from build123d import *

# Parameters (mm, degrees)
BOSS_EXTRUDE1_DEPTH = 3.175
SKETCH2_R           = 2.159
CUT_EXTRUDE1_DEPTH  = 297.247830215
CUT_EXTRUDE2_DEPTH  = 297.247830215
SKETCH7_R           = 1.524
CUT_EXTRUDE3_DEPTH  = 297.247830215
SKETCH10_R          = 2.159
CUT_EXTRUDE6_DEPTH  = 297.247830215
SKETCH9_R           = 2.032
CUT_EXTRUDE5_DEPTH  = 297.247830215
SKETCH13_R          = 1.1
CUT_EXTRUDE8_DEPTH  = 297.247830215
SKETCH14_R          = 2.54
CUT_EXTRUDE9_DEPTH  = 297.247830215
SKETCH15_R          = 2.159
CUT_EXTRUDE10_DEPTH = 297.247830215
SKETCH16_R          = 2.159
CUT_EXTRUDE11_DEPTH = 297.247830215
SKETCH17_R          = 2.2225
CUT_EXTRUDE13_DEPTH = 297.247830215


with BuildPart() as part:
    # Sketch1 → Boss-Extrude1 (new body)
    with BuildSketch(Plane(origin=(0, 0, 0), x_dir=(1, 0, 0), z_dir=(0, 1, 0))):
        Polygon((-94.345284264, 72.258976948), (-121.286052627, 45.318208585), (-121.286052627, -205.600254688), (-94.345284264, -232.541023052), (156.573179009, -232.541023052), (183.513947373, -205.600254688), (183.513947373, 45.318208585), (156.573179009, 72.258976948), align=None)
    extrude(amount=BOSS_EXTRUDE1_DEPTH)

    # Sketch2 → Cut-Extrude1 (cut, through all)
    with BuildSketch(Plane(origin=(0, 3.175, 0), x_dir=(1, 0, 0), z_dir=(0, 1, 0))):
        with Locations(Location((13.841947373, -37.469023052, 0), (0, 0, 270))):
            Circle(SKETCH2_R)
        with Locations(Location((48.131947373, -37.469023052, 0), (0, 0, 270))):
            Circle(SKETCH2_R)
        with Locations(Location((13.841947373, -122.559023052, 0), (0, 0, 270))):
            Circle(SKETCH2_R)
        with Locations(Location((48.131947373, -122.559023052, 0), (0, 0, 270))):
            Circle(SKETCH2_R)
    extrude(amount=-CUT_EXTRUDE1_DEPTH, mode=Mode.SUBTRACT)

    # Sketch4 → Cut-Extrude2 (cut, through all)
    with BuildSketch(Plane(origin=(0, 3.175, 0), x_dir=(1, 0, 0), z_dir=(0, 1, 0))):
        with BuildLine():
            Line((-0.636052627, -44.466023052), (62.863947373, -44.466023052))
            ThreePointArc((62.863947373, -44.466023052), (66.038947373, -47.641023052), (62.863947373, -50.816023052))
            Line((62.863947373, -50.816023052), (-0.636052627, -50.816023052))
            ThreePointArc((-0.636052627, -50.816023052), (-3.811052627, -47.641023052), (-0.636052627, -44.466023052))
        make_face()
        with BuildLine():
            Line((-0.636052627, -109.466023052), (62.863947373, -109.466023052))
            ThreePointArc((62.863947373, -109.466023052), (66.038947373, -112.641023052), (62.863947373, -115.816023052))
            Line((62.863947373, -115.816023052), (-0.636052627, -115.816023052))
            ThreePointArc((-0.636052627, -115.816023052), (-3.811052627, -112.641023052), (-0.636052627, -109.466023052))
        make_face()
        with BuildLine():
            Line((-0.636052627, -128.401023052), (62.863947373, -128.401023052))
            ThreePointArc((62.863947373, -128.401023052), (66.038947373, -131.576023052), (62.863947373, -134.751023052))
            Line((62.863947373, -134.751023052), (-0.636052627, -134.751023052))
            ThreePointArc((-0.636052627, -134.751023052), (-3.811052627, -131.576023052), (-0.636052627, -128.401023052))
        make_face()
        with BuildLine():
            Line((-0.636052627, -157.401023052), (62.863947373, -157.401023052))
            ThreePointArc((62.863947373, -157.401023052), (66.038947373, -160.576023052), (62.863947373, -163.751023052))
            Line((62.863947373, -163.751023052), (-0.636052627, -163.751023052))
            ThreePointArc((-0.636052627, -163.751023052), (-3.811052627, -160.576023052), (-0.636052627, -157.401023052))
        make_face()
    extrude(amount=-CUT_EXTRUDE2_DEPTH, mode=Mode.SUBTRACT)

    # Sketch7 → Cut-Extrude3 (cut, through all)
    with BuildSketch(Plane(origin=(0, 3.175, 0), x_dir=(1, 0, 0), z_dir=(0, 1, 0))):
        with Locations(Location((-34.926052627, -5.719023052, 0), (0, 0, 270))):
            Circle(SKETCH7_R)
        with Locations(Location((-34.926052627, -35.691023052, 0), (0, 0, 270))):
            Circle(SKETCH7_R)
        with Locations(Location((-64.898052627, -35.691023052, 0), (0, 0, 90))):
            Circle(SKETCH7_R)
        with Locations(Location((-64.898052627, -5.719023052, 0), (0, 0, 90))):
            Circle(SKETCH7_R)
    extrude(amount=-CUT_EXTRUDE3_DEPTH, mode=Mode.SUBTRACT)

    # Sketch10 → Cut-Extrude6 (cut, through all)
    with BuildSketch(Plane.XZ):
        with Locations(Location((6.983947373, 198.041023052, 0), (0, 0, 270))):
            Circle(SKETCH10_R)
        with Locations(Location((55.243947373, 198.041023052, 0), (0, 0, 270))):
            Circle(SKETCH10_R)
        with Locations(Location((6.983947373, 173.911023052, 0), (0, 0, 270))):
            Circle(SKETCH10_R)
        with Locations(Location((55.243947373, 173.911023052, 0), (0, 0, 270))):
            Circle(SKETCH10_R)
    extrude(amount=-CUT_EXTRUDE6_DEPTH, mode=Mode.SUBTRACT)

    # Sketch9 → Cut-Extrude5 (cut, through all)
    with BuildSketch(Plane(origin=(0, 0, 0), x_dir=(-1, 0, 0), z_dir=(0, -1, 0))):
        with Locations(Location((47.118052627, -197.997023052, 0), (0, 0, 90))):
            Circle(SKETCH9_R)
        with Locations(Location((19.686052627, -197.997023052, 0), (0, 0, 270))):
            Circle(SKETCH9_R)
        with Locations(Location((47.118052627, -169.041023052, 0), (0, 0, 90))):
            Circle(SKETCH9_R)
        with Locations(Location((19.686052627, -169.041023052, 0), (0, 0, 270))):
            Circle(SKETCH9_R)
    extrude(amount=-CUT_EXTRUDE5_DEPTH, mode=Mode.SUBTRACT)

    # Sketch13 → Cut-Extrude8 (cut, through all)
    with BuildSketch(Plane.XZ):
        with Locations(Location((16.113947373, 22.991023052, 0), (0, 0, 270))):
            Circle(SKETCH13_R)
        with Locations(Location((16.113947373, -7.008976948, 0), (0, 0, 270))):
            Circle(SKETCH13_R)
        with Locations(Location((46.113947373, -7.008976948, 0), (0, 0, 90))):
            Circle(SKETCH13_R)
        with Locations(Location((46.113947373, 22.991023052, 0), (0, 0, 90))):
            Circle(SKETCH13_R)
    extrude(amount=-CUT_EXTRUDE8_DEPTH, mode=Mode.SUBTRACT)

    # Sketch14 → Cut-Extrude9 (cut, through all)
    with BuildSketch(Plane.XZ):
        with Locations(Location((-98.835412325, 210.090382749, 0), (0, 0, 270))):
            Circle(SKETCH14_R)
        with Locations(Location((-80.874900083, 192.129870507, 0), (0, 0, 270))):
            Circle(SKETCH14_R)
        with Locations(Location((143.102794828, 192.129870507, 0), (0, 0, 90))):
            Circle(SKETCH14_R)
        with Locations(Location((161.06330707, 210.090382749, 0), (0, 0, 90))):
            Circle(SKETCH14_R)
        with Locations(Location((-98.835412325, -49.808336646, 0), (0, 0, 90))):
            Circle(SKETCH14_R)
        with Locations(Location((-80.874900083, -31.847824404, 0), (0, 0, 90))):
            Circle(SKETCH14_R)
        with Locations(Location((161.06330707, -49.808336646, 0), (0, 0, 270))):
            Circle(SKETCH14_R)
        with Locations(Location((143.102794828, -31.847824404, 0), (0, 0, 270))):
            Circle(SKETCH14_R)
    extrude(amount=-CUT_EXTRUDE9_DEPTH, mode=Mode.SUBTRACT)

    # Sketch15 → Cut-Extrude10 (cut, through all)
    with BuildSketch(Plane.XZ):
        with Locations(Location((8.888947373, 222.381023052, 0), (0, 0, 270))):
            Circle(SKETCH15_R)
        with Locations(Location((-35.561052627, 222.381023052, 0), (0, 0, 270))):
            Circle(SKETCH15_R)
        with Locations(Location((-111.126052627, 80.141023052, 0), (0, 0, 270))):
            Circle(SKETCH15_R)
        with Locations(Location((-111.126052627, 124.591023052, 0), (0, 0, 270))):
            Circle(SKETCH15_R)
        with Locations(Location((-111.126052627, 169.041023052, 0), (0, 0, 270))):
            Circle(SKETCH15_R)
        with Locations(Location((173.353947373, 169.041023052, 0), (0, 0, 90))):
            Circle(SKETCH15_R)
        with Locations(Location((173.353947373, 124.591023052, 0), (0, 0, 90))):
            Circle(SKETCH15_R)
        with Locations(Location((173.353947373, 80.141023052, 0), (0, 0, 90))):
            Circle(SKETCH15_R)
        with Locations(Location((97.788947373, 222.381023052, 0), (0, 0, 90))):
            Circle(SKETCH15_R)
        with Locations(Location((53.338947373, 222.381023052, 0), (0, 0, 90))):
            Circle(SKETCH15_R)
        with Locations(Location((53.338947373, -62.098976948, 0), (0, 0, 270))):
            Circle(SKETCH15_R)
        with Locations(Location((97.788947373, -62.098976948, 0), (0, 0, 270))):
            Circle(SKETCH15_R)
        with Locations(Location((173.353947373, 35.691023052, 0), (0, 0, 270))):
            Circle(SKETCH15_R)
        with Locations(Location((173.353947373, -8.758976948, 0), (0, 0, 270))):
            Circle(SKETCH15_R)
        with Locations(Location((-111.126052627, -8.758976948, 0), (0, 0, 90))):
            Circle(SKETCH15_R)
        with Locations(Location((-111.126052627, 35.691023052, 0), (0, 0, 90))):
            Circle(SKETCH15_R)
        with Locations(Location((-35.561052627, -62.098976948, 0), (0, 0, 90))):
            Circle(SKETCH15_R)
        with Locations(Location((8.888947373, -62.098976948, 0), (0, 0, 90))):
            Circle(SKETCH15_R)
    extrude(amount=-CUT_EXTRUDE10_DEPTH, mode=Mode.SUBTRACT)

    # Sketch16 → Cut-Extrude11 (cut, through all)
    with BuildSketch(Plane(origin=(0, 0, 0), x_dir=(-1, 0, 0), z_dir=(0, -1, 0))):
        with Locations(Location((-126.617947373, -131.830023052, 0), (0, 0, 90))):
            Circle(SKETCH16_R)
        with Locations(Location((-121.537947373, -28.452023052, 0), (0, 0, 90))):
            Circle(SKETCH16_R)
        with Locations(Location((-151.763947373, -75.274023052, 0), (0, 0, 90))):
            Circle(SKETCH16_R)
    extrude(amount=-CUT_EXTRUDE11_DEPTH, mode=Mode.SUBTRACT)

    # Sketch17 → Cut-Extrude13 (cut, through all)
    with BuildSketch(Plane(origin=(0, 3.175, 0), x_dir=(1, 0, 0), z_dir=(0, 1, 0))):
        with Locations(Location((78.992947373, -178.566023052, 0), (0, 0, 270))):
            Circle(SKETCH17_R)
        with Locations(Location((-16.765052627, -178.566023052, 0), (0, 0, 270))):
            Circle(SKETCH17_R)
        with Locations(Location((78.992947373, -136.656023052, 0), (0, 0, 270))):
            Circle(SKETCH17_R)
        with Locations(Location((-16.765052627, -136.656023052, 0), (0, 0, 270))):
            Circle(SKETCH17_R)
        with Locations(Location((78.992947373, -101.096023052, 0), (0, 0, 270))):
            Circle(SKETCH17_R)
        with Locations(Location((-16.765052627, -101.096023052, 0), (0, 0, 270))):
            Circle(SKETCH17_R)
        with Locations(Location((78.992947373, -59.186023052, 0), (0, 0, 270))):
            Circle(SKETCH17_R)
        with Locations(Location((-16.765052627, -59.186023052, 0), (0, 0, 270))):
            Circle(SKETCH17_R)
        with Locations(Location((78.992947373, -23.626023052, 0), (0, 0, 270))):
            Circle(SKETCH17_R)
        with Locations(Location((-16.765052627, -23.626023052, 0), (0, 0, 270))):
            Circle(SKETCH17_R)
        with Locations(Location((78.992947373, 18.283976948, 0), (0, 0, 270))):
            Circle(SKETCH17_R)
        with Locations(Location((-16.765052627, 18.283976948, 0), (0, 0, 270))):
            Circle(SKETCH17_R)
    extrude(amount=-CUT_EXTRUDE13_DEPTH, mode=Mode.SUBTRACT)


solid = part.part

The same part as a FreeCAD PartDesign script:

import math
import FreeCAD as App
import Part
import Sketcher

V = App.Vector
Q = App.Units.Quantity


def add_polygon(sketch, points):
    """Adds a closed chain of lines whose ends are joined by coincident constraints."""
    first, n = sketch.GeometryCount, len(points)
    for a, b in zip(points, points[1:] + points[:1]):
        sketch.addGeometry(Part.LineSegment(App.Vector(*a, 0), App.Vector(*b, 0)), False)
    for i in range(n):
        sketch.addConstraint(Sketcher.Constraint("Coincident", first + i, 2, first + (i + 1) % n, 1))

doc = App.newDocument("Part")
body = doc.addObject("PartDesign::Body", "Body")

sketch1 = body.newObject("Sketcher::SketchObject", "Sketch")
sketch1.AttachmentSupport = (doc.getObject("XZ_Plane"), [""])
sketch1.MapMode = "FlatFace"
add_polygon(sketch1, [(-94, -72), (-121, -45), (-121, 206), (-94, 233), (157, 233), (184, 206), (184, -45), (157, -72)])
sketch1.addConstraint(Sketcher.Constraint("Vertical", 1))
sketch1.addConstraint(Sketcher.Constraint("Horizontal", 3))
sketch1.addConstraint(Sketcher.Constraint("Vertical", 5))
sketch1.addConstraint(Sketcher.Constraint("Horizontal", 7))
sketch1.addConstraint(Sketcher.Constraint("Perpendicular", 0, 2))
sketch1.addConstraint(Sketcher.Constraint("Perpendicular", 2, 4))
sketch1.addConstraint(Sketcher.Constraint("Perpendicular", 4, 6))
sketch1.addConstraint(Sketcher.Constraint("Horizontal", 1, 2, 4, 2))
sketch1.addConstraint(Sketcher.Constraint("Horizontal", 0, 2, 5, 2))
sketch1.addConstraint(Sketcher.Constraint("Vertical", 3, 2, 6, 2))
sketch1.addConstraint(Sketcher.Constraint("Vertical", 2, 2, 7, 2))
sketch1.addConstraint(Sketcher.Constraint("Equal", 7, 1))
sketch1.addConstraint(Sketcher.Constraint("DistanceX", 1, 2, 4, 2, Q("12 in")))
sketch1.addConstraint(Sketcher.Constraint("Distance", 0, Q("1.5 in")))
sketch1.addConstraint(Sketcher.Constraint("DistanceY", 0, 2, -1, 1, Q("45.318209 mm")))
sketch1.addConstraint(Sketcher.Constraint("DistanceX", -1, 1, 3, 2, Q("156.573179 mm")))
pad1 = body.newObject("PartDesign::Pad", "Pad")
pad1.Profile = sketch1
pad1.Length = Q("0.125 in")
pad1.Reversed = True

sketch2 = body.newObject("Sketcher::SketchObject", "Sketch001")
sketch2.AttachmentSupport = (doc.getObject("XZ_Plane"), [""])
sketch2.MapMode = "FlatFace"
sketch2.AttachmentOffset = App.Placement(V(0, 0, -0.125 * 25.4), App.Rotation())
sketch2.addGeometry(Part.Circle(V(13.8, 37.5, 0), V(0, 0, 1), 2.2), False)
sketch2.addGeometry(Part.Circle(V(48.1, 37.5, 0), V(0, 0, 1), 2.2), False)
sketch2.addGeometry(Part.Circle(V(13.8, 122.6, 0), V(0, 0, 1), 2.2), False)
sketch2.addGeometry(Part.Circle(V(48.1, 122.6, 0), V(0, 0, 1), 2.2), False)
sketch2.addConstraint(Sketcher.Constraint("Equal", 0, 1))
sketch2.addConstraint(Sketcher.Constraint("Equal", 1, 2))
sketch2.addConstraint(Sketcher.Constraint("Equal", 2, 3))
sketch2.addConstraint(Sketcher.Constraint("Horizontal", 0, 3, 1, 3))
sketch2.addConstraint(Sketcher.Constraint("Horizontal", 2, 3, 3, 3))
sketch2.addConstraint(Sketcher.Constraint("Vertical", 0, 3, 2, 3))
sketch2.addConstraint(Sketcher.Constraint("Vertical", 1, 3, 3, 3))
sketch2.addConstraint(Sketcher.Constraint("Diameter", 0, Q("0.17 in")))
sketch2.addConstraint(Sketcher.Constraint("DistanceX", 0, 3, 1, 3, Q("1.35 in")))
sketch2.addConstraint(Sketcher.Constraint("DistanceY", 0, 3, 2, 3, Q("3.35 in")))
sketch2.addConstraint(Sketcher.Constraint("DistanceX", -1, 1, 0, 3, Q("13.841947 mm")))
sketch2.addConstraint(Sketcher.Constraint("DistanceY", -1, 1, 0, 3, Q("37.469023 mm")))
pocket1 = body.newObject("PartDesign::Pocket", "Pocket")
pocket1.Profile = sketch2
pocket1.Type = "ThroughAll"
pocket1.Reversed = True

sketch3 = body.newObject("Sketcher::SketchObject", "Sketch002")
sketch3.AttachmentSupport = (doc.getObject("XZ_Plane"), [""])
sketch3.MapMode = "FlatFace"
sketch3.AttachmentOffset = App.Placement(V(0, 0, -0.125 * 25.4), App.Rotation())
sketch3.addGeometry(Part.LineSegment(V(62.9, 44.5, 0), V(-0.6, 44.5, 0)), False)
sketch3.addGeometry(Part.ArcOfCircle(Part.Circle(V(-0.6, 47.6, 0), V(0, 0, 1), 3.2), math.radians(90), math.radians(270)), False)
sketch3.addGeometry(Part.LineSegment(V(-0.6, 50.8, 0), V(62.9, 50.8, 0)), False)
sketch3.addGeometry(Part.ArcOfCircle(Part.Circle(V(62.9, 47.6, 0), V(0, 0, 1), 3.2), math.radians(-90), math.radians(90)), False)
sketch3.addGeometry(Part.LineSegment(V(62.9, 109.5, 0), V(-0.6, 109.5, 0)), False)
sketch3.addGeometry(Part.ArcOfCircle(Part.Circle(V(-0.6, 112.6, 0), V(0, 0, 1), 3.2), math.radians(90), math.radians(270)), False)
sketch3.addGeometry(Part.LineSegment(V(-0.6, 115.8, 0), V(62.9, 115.8, 0)), False)
sketch3.addGeometry(Part.ArcOfCircle(Part.Circle(V(62.9, 112.6, 0), V(0, 0, 1), 3.2), math.radians(-90), math.radians(90)), False)
sketch3.addGeometry(Part.LineSegment(V(62.9, 128.4, 0), V(-0.6, 128.4, 0)), False)
sketch3.addGeometry(Part.ArcOfCircle(Part.Circle(V(-0.6, 131.6, 0), V(0, 0, 1), 3.2), math.radians(90), math.radians(270)), False)
sketch3.addGeometry(Part.LineSegment(V(-0.6, 134.8, 0), V(62.9, 134.8, 0)), False)
sketch3.addGeometry(Part.ArcOfCircle(Part.Circle(V(62.9, 131.6, 0), V(0, 0, 1), 3.2), math.radians(-90), math.radians(90)), False)
sketch3.addGeometry(Part.LineSegment(V(62.9, 157.4, 0), V(-0.6, 157.4, 0)), False)
sketch3.addGeometry(Part.ArcOfCircle(Part.Circle(V(-0.6, 160.6, 0), V(0, 0, 1), 3.2), math.radians(90), math.radians(270)), False)
sketch3.addGeometry(Part.LineSegment(V(-0.6, 163.8, 0), V(62.9, 163.8, 0)), False)
sketch3.addGeometry(Part.ArcOfCircle(Part.Circle(V(62.9, 160.6, 0), V(0, 0, 1), 3.2), math.radians(-90), math.radians(90)), False)
sketch3.addConstraint(Sketcher.Constraint("Tangent", 0, 2, 1, 2))
sketch3.addConstraint(Sketcher.Constraint("Tangent", 1, 1, 2, 1))
sketch3.addConstraint(Sketcher.Constraint("Tangent", 2, 2, 3, 2))
sketch3.addConstraint(Sketcher.Constraint("Tangent", 3, 1, 0, 1))
sketch3.addConstraint(Sketcher.Constraint("Tangent", 4, 2, 5, 2))
sketch3.addConstraint(Sketcher.Constraint("Tangent", 5, 1, 6, 1))
sketch3.addConstraint(Sketcher.Constraint("Tangent", 6, 2, 7, 2))
sketch3.addConstraint(Sketcher.Constraint("Tangent", 7, 1, 4, 1))
sketch3.addConstraint(Sketcher.Constraint("Tangent", 8, 2, 9, 2))
sketch3.addConstraint(Sketcher.Constraint("Tangent", 9, 1, 10, 1))
sketch3.addConstraint(Sketcher.Constraint("Tangent", 10, 2, 11, 2))
sketch3.addConstraint(Sketcher.Constraint("Tangent", 11, 1, 8, 1))
sketch3.addConstraint(Sketcher.Constraint("Tangent", 12, 2, 13, 2))
sketch3.addConstraint(Sketcher.Constraint("Tangent", 13, 1, 14, 1))
sketch3.addConstraint(Sketcher.Constraint("Tangent", 14, 2, 15, 2))
sketch3.addConstraint(Sketcher.Constraint("Tangent", 15, 1, 12, 1))
sketch3.addConstraint(Sketcher.Constraint("Horizontal", 0))
sketch3.addConstraint(Sketcher.Constraint("Horizontal", 2))
sketch3.addConstraint(Sketcher.Constraint("Horizontal", 4))
sketch3.addConstraint(Sketcher.Constraint("Horizontal", 6))
sketch3.addConstraint(Sketcher.Constraint("Horizontal", 8))
sketch3.addConstraint(Sketcher.Constraint("Horizontal", 10))
sketch3.addConstraint(Sketcher.Constraint("Horizontal", 12))
sketch3.addConstraint(Sketcher.Constraint("Horizontal", 14))
sketch3.addConstraint(Sketcher.Constraint("Equal", 3, 5))
sketch3.addConstraint(Sketcher.Constraint("Equal", 7, 9))
sketch3.addConstraint(Sketcher.Constraint("Equal", 11, 13))
sketch3.addConstraint(Sketcher.Constraint("Vertical", 1, 3, 5, 3))
sketch3.addConstraint(Sketcher.Constraint("Vertical", 3, 3, 7, 3))
sketch3.addConstraint(Sketcher.Constraint("Vertical", 5, 3, 9, 3))
sketch3.addConstraint(Sketcher.Constraint("Vertical", 7, 3, 11, 3))
sketch3.addConstraint(Sketcher.Constraint("Vertical", 9, 3, 13, 3))
sketch3.addConstraint(Sketcher.Constraint("Vertical", 11, 3, 15, 3))
sketch3.addConstraint(Sketcher.Constraint("DistanceX", 0, 2, 0, 1, Q("2.5 in")))
sketch3.addConstraint(Sketcher.Constraint("Radius", 1, Q("0.125 in")))
sketch3.addConstraint(Sketcher.Constraint("DistanceY", 1, 3, 5, 3, Q("65 mm")))
sketch3.addConstraint(Sketcher.Constraint("DistanceY", 5, 3, 9, 3, Q("18.935 mm")))
sketch3.addConstraint(Sketcher.Constraint("DistanceY", 9, 3, 13, 3, Q("29 mm")))
sketch3.addConstraint(Sketcher.Constraint("DistanceX", 1, 3, -1, 1, Q("0.636053 mm")))
sketch3.addConstraint(Sketcher.Constraint("DistanceY", -1, 1, 1, 3, Q("47.641023 mm")))
pocket2 = body.newObject("PartDesign::Pocket", "Pocket001")
pocket2.Profile = sketch3
pocket2.Type = "ThroughAll"
pocket2.Reversed = True

sketch4 = body.newObject("Sketcher::SketchObject", "Sketch003")
sketch4.AttachmentSupport = (doc.getObject("XZ_Plane"), [""])
sketch4.MapMode = "FlatFace"
sketch4.AttachmentOffset = App.Placement(V(0, 0, -0.125 * 25.4), App.Rotation())
sketch4.addGeometry(Part.Circle(V(-34.9, 5.7, 0), V(0, 0, 1), 1.5), False)
sketch4.addGeometry(Part.Circle(V(-34.9, 35.7, 0), V(0, 0, 1), 1.5), False)
sketch4.addGeometry(Part.Circle(V(-64.9, 35.7, 0), V(0, 0, 1), 1.5), False)
sketch4.addGeometry(Part.Circle(V(-64.9, 5.7, 0), V(0, 0, 1), 1.5), False)
sketch4.addConstraint(Sketcher.Constraint("Equal", 0, 1))
sketch4.addConstraint(Sketcher.Constraint("Equal", 1, 2))
sketch4.addConstraint(Sketcher.Constraint("Equal", 2, 3))
sketch4.addConstraint(Sketcher.Constraint("Horizontal", 1, 3, 2, 3))
sketch4.addConstraint(Sketcher.Constraint("Horizontal", 0, 3, 3, 3))
sketch4.addConstraint(Sketcher.Constraint("Vertical", 0, 3, 1, 3))
sketch4.addConstraint(Sketcher.Constraint("Vertical", 2, 3, 3, 3))
sketch4.addConstraint(Sketcher.Constraint("Diameter", 0, Q("0.12 in")))
sketch4.addConstraint(Sketcher.Constraint("DistanceY", 0, 3, 1, 3, Q("1.18 in")))
sketch4.addConstraint(Sketcher.Constraint("DistanceX", 2, 3, 1, 3, Q("1.18 in")))
sketch4.addConstraint(Sketcher.Constraint("DistanceX", 0, 3, -1, 1, Q("34.926053 mm")))
sketch4.addConstraint(Sketcher.Constraint("DistanceY", -1, 1, 0, 3, Q("5.719023 mm")))
pocket3 = body.newObject("PartDesign::Pocket", "Pocket002")
pocket3.Profile = sketch4
pocket3.Type = "ThroughAll"
pocket3.Reversed = True

sketch5 = body.newObject("Sketcher::SketchObject", "Sketch004")
sketch5.AttachmentSupport = (doc.getObject("XZ_Plane"), [""])
sketch5.MapMode = "FlatFace"
sketch5.addGeometry(Part.Circle(V(7, 198, 0), V(0, 0, 1), 2.2), False)
sketch5.addGeometry(Part.Circle(V(55.2, 198, 0), V(0, 0, 1), 2.2), False)
sketch5.addGeometry(Part.Circle(V(7, 173.9, 0), V(0, 0, 1), 2.2), False)
sketch5.addGeometry(Part.Circle(V(55.2, 173.9, 0), V(0, 0, 1), 2.2), False)
sketch5.addConstraint(Sketcher.Constraint("Equal", 0, 1))
sketch5.addConstraint(Sketcher.Constraint("Equal", 1, 2))
sketch5.addConstraint(Sketcher.Constraint("Equal", 2, 3))
sketch5.addConstraint(Sketcher.Constraint("Horizontal", 0, 3, 1, 3))
sketch5.addConstraint(Sketcher.Constraint("Horizontal", 2, 3, 3, 3))
sketch5.addConstraint(Sketcher.Constraint("Vertical", 0, 3, 2, 3))
sketch5.addConstraint(Sketcher.Constraint("Vertical", 1, 3, 3, 3))
sketch5.addConstraint(Sketcher.Constraint("Diameter", 0, Q("0.17 in")))
sketch5.addConstraint(Sketcher.Constraint("DistanceX", 0, 3, 1, 3, Q("1.9 in")))
sketch5.addConstraint(Sketcher.Constraint("DistanceY", 2, 3, 0, 3, Q("0.95 in")))
sketch5.addConstraint(Sketcher.Constraint("DistanceX", -1, 1, 0, 3, Q("6.983947 mm")))
sketch5.addConstraint(Sketcher.Constraint("DistanceY", -1, 1, 0, 3, Q("198.041023 mm")))
pocket4 = body.newObject("PartDesign::Pocket", "Pocket003")
pocket4.Profile = sketch5
pocket4.Type = "ThroughAll"

sketch6 = body.newObject("Sketcher::SketchObject", "Sketch005")
sketch6.AttachmentSupport = (doc.getObject("XZ_Plane"), [""])
sketch6.MapMode = "FlatFace"
sketch6.addGeometry(Part.Circle(V(-47.1, 198, 0), V(0, 0, 1), 2), False)
sketch6.addGeometry(Part.Circle(V(-19.7, 198, 0), V(0, 0, 1), 2), False)
sketch6.addGeometry(Part.Circle(V(-47.1, 169, 0), V(0, 0, 1), 2), False)
sketch6.addGeometry(Part.Circle(V(-19.7, 169, 0), V(0, 0, 1), 2), False)
sketch6.addConstraint(Sketcher.Constraint("Equal", 0, 1))
sketch6.addConstraint(Sketcher.Constraint("Equal", 1, 2))
sketch6.addConstraint(Sketcher.Constraint("Equal", 2, 3))
sketch6.addConstraint(Sketcher.Constraint("Horizontal", 0, 3, 1, 3))
sketch6.addConstraint(Sketcher.Constraint("Horizontal", 2, 3, 3, 3))
sketch6.addConstraint(Sketcher.Constraint("Vertical", 0, 3, 2, 3))
sketch6.addConstraint(Sketcher.Constraint("Vertical", 1, 3, 3, 3))
sketch6.addConstraint(Sketcher.Constraint("Diameter", 0, Q("0.16 in")))
sketch6.addConstraint(Sketcher.Constraint("DistanceX", 0, 3, 1, 3, Q("1.08 in")))
sketch6.addConstraint(Sketcher.Constraint("DistanceY", 2, 3, 0, 3, Q("1.14 in")))
sketch6.addConstraint(Sketcher.Constraint("DistanceX", 0, 3, -1, 1, Q("47.118053 mm")))
sketch6.addConstraint(Sketcher.Constraint("DistanceY", -1, 1, 0, 3, Q("197.997023 mm")))
pocket5 = body.newObject("PartDesign::Pocket", "Pocket004")
pocket5.Profile = sketch6
pocket5.Type = "ThroughAll"

sketch7 = body.newObject("Sketcher::SketchObject", "Sketch006")
sketch7.AttachmentSupport = (doc.getObject("XZ_Plane"), [""])
sketch7.MapMode = "FlatFace"
sketch7.addGeometry(Part.Circle(V(16.1, 23, 0), V(0, 0, 1), 1.1), False)
sketch7.addGeometry(Part.Circle(V(16.1, -7, 0), V(0, 0, 1), 1.1), False)
sketch7.addGeometry(Part.Circle(V(46.1, -7, 0), V(0, 0, 1), 1.1), False)
sketch7.addGeometry(Part.Circle(V(46.1, 23, 0), V(0, 0, 1), 1.1), False)
sketch7.addConstraint(Sketcher.Constraint("Equal", 0, 1))
sketch7.addConstraint(Sketcher.Constraint("Equal", 1, 2))
sketch7.addConstraint(Sketcher.Constraint("Equal", 2, 3))
sketch7.addConstraint(Sketcher.Constraint("Horizontal", 1, 3, 2, 3))
sketch7.addConstraint(Sketcher.Constraint("Horizontal", 0, 3, 3, 3))
sketch7.addConstraint(Sketcher.Constraint("Vertical", 0, 3, 1, 3))
sketch7.addConstraint(Sketcher.Constraint("Vertical", 2, 3, 3, 3))
sketch7.addConstraint(Sketcher.Constraint("Diameter", 0, Q("2.2 mm")))
sketch7.addConstraint(Sketcher.Constraint("DistanceY", 1, 3, 0, 3, Q("30 mm")))
sketch7.addConstraint(Sketcher.Constraint("DistanceX", 1, 3, 2, 3, Q("30 mm")))
sketch7.addConstraint(Sketcher.Constraint("DistanceX", -1, 1, 0, 3, Q("16.113947 mm")))
sketch7.addConstraint(Sketcher.Constraint("DistanceY", -1, 1, 0, 3, Q("22.991023 mm")))
pocket6 = body.newObject("PartDesign::Pocket", "Pocket005")
pocket6.Profile = sketch7
pocket6.Type = "ThroughAll"

sketch8 = body.newObject("Sketcher::SketchObject", "Sketch007")
sketch8.AttachmentSupport = (doc.getObject("XZ_Plane"), [""])
sketch8.MapMode = "FlatFace"
sketch8.addGeometry(Part.Circle(V(-98.8, 210.1, 0), V(0, 0, 1), 2.5), False)
sketch8.addGeometry(Part.Circle(V(-80.9, 192.1, 0), V(0, 0, 1), 2.5), False)
sketch8.addGeometry(Part.Circle(V(143.1, 192.1, 0), V(0, 0, 1), 2.5), False)
sketch8.addGeometry(Part.Circle(V(161.1, 210.1, 0), V(0, 0, 1), 2.5), False)
sketch8.addGeometry(Part.Circle(V(-98.8, -49.8, 0), V(0, 0, 1), 2.5), False)
sketch8.addGeometry(Part.Circle(V(-80.9, -31.8, 0), V(0, 0, 1), 2.5), False)
sketch8.addGeometry(Part.Circle(V(161.1, -49.8, 0), V(0, 0, 1), 2.5), False)
sketch8.addGeometry(Part.Circle(V(143.1, -31.8, 0), V(0, 0, 1), 2.5), False)
sketch8.addConstraint(Sketcher.Constraint("Equal", 0, 1))
sketch8.addConstraint(Sketcher.Constraint("Equal", 1, 2))
sketch8.addConstraint(Sketcher.Constraint("Equal", 2, 3))
sketch8.addConstraint(Sketcher.Constraint("Equal", 3, 4))
sketch8.addConstraint(Sketcher.Constraint("Equal", 4, 5))
sketch8.addConstraint(Sketcher.Constraint("Equal", 5, 6))
sketch8.addConstraint(Sketcher.Constraint("Equal", 6, 7))
sketch8.addConstraint(Sketcher.Constraint("Horizontal", 1, 3, 2, 3))
sketch8.addConstraint(Sketcher.Constraint("Horizontal", 0, 3, 3, 3))
sketch8.addConstraint(Sketcher.Constraint("Horizontal", 4, 3, 6, 3))
sketch8.addConstraint(Sketcher.Constraint("Horizontal", 5, 3, 7, 3))
sketch8.addConstraint(Sketcher.Constraint("Vertical", 0, 3, 4, 3))
sketch8.addConstraint(Sketcher.Constraint("Vertical", 1, 3, 5, 3))
sketch8.addConstraint(Sketcher.Constraint("Vertical", 3, 3, 6, 3))
sketch8.addConstraint(Sketcher.Constraint("Vertical", 2, 3, 7, 3))
sketch8.addConstraint(Sketcher.Constraint("Diameter", 0, Q("0.2 in")))
sketch8.addConstraint(Sketcher.Constraint("DistanceX", 1, 3, -1, 1, Q("80.8749 mm")))
sketch8.addConstraint(Sketcher.Constraint("DistanceY", -1, 1, 1, 3, Q("192.129871 mm")))
sketch8.addConstraint(Sketcher.Constraint("DistanceX", 0, 3, 3, 3, Q("259.898719 mm")))
sketch8.addConstraint(Sketcher.Constraint("DistanceY", 4, 3, 0, 3, Q("259.898719 mm")))
sketch8.addConstraint(Sketcher.Constraint("DistanceX", 0, 3, -1, 1, Q("98.835412 mm")))
sketch8.addConstraint(Sketcher.Constraint("DistanceY", -1, 1, 0, 3, Q("210.090383 mm")))
sketch8.addConstraint(Sketcher.Constraint("DistanceX", -1, 1, 2, 3, Q("143.102795 mm")))
sketch8.addConstraint(Sketcher.Constraint("DistanceY", 5, 3, -1, 1, Q("31.847824 mm")))
pocket7 = body.newObject("PartDesign::Pocket", "Pocket006")
pocket7.Profile = sketch8
pocket7.Type = "ThroughAll"

sketch9 = body.newObject("Sketcher::SketchObject", "Sketch008")
sketch9.AttachmentSupport = (doc.getObject("XZ_Plane"), [""])
sketch9.MapMode = "FlatFace"
sketch9.addGeometry(Part.Circle(V(8.9, 222.4, 0), V(0, 0, 1), 2.2), False)
sketch9.addGeometry(Part.Circle(V(-35.6, 222.4, 0), V(0, 0, 1), 2.2), False)
sketch9.addGeometry(Part.Circle(V(-111.1, 80.1, 0), V(0, 0, 1), 2.2), False)
sketch9.addGeometry(Part.Circle(V(-111.1, 124.6, 0), V(0, 0, 1), 2.2), False)
sketch9.addGeometry(Part.Circle(V(-111.1, 169, 0), V(0, 0, 1), 2.2), False)
sketch9.addGeometry(Part.Circle(V(173.4, 169, 0), V(0, 0, 1), 2.2), False)
sketch9.addGeometry(Part.Circle(V(173.4, 124.6, 0), V(0, 0, 1), 2.2), False)
sketch9.addGeometry(Part.Circle(V(173.4, 80.1, 0), V(0, 0, 1), 2.2), False)
sketch9.addGeometry(Part.Circle(V(97.8, 222.4, 0), V(0, 0, 1), 2.2), False)
sketch9.addGeometry(Part.Circle(V(53.3, 222.4, 0), V(0, 0, 1), 2.2), False)
sketch9.addGeometry(Part.Circle(V(53.3, -62.1, 0), V(0, 0, 1), 2.2), False)
sketch9.addGeometry(Part.Circle(V(97.8, -62.1, 0), V(0, 0, 1), 2.2), False)
sketch9.addGeometry(Part.Circle(V(173.4, 35.7, 0), V(0, 0, 1), 2.2), False)
sketch9.addGeometry(Part.Circle(V(173.4, -8.8, 0), V(0, 0, 1), 2.2), False)
sketch9.addGeometry(Part.Circle(V(-111.1, -8.8, 0), V(0, 0, 1), 2.2), False)
sketch9.addGeometry(Part.Circle(V(-111.1, 35.7, 0), V(0, 0, 1), 2.2), False)
sketch9.addGeometry(Part.Circle(V(-35.6, -62.1, 0), V(0, 0, 1), 2.2), False)
sketch9.addGeometry(Part.Circle(V(8.9, -62.1, 0), V(0, 0, 1), 2.2), False)
sketch9.addConstraint(Sketcher.Constraint("Equal", 0, 1))
sketch9.addConstraint(Sketcher.Constraint("Equal", 1, 2))
sketch9.addConstraint(Sketcher.Constraint("Equal", 2, 3))
sketch9.addConstraint(Sketcher.Constraint("Equal", 3, 4))
sketch9.addConstraint(Sketcher.Constraint("Equal", 4, 5))
sketch9.addConstraint(Sketcher.Constraint("Equal", 5, 6))
sketch9.addConstraint(Sketcher.Constraint("Equal", 6, 7))
sketch9.addConstraint(Sketcher.Constraint("Equal", 7, 8))
sketch9.addConstraint(Sketcher.Constraint("Equal", 8, 9))
sketch9.addConstraint(Sketcher.Constraint("Equal", 9, 10))
sketch9.addConstraint(Sketcher.Constraint("Equal", 10, 11))
sketch9.addConstraint(Sketcher.Constraint("Equal", 11, 12))
sketch9.addConstraint(Sketcher.Constraint("Equal", 12, 13))
sketch9.addConstraint(Sketcher.Constraint("Equal", 13, 14))
sketch9.addConstraint(Sketcher.Constraint("Equal", 14, 15))
sketch9.addConstraint(Sketcher.Constraint("Equal", 15, 16))
sketch9.addConstraint(Sketcher.Constraint("Equal", 16, 17))
sketch9.addConstraint(Sketcher.Constraint("Horizontal", 0, 3, 1, 3))
sketch9.addConstraint(Sketcher.Constraint("Horizontal", 4, 3, 5, 3))
sketch9.addConstraint(Sketcher.Constraint("Horizontal", 3, 3, 6, 3))
sketch9.addConstraint(Sketcher.Constraint("Horizontal", 2, 3, 7, 3))
sketch9.addConstraint(Sketcher.Constraint("Horizontal", 1, 3, 8, 3))
sketch9.addConstraint(Sketcher.Constraint("Horizontal", 8, 3, 9, 3))
sketch9.addConstraint(Sketcher.Constraint("Horizontal", 10, 3, 11, 3))
sketch9.addConstraint(Sketcher.Constraint("Horizontal", 13, 3, 14, 3))
sketch9.addConstraint(Sketcher.Constraint("Horizontal", 12, 3, 15, 3))
sketch9.addConstraint(Sketcher.Constraint("Horizontal", 11, 3, 16, 3))
sketch9.addConstraint(Sketcher.Constraint("Horizontal", 16, 3, 17, 3))
sketch9.addConstraint(Sketcher.Constraint("Vertical", 2, 3, 3, 3))
sketch9.addConstraint(Sketcher.Constraint("Vertical", 3, 3, 4, 3))
sketch9.addConstraint(Sketcher.Constraint("Vertical", 5, 3, 6, 3))
sketch9.addConstraint(Sketcher.Constraint("Vertical", 6, 3, 7, 3))
sketch9.addConstraint(Sketcher.Constraint("Vertical", 9, 3, 10, 3))
sketch9.addConstraint(Sketcher.Constraint("Vertical", 8, 3, 11, 3))
sketch9.addConstraint(Sketcher.Constraint("Vertical", 7, 3, 12, 3))
sketch9.addConstraint(Sketcher.Constraint("Vertical", 12, 3, 13, 3))
sketch9.addConstraint(Sketcher.Constraint("Vertical", 4, 3, 14, 3))
sketch9.addConstraint(Sketcher.Constraint("Vertical", 14, 3, 15, 3))
sketch9.addConstraint(Sketcher.Constraint("Vertical", 1, 3, 16, 3))
sketch9.addConstraint(Sketcher.Constraint("Vertical", 0, 3, 17, 3))
sketch9.addConstraint(Sketcher.Constraint("Diameter", 0, Q("0.17 in")))
sketch9.addConstraint(Sketcher.Constraint("DistanceY", 14, 3, 4, 3, Q("7 in")))
sketch9.addConstraint(Sketcher.Constraint("DistanceY", 2, 3, 1, 3, Q("5.6 in")))
sketch9.addConstraint(Sketcher.Constraint("DistanceY", 2, 3, 4, 3, Q("3.5 in")))
sketch9.addConstraint(Sketcher.Constraint("DistanceX", 4, 3, 5, 3, Q("11.2 in")))
sketch9.addConstraint(Sketcher.Constraint("DistanceX", 0, 3, 8, 3, Q("3.5 in")))
sketch9.addConstraint(Sketcher.Constraint("DistanceX", 1, 3, 9, 3, Q("3.5 in")))
sketch9.addConstraint(Sketcher.Constraint("DistanceY", 10, 3, 7, 3, Q("5.6 in")))
sketch9.addConstraint(Sketcher.Constraint("DistanceY", 12, 3, 6, 3, Q("3.5 in")))
sketch9.addConstraint(Sketcher.Constraint("DistanceX", 1, 3, 0, 3, Q("1.75 in")))
sketch9.addConstraint(Sketcher.Constraint("DistanceY", 2, 3, 3, 3, Q("1.75 in")))
sketch9.addConstraint(Sketcher.Constraint("DistanceX", 2, 3, 1, 3, Q("2.975 in")))
sketch9.addConstraint(Sketcher.Constraint("DistanceX", -1, 1, 0, 3, Q("8.888947 mm")))
sketch9.addConstraint(Sketcher.Constraint("DistanceY", -1, 1, 0, 3, Q("222.381023 mm")))
pocket8 = body.newObject("PartDesign::Pocket", "Pocket007")
pocket8.Profile = sketch9
pocket8.Type = "ThroughAll"

sketch10 = body.newObject("Sketcher::SketchObject", "Sketch009")
sketch10.AttachmentSupport = (doc.getObject("XZ_Plane"), [""])
sketch10.MapMode = "FlatFace"
sketch10.addGeometry(Part.Circle(V(126.6, 131.8, 0), V(0, 0, 1), 2.2), False)
sketch10.addGeometry(Part.Circle(V(121.5, 28.5, 0), V(0, 0, 1), 2.2), False)
sketch10.addGeometry(Part.Circle(V(151.8, 75.3, 0), V(0, 0, 1), 2.2), False)
sketch10.addConstraint(Sketcher.Constraint("Equal", 0, 1))
sketch10.addConstraint(Sketcher.Constraint("Equal", 1, 2))
sketch10.addConstraint(Sketcher.Constraint("Diameter", 0, Q("0.17 in")))
sketch10.addConstraint(Sketcher.Constraint("DistanceX", 1, 3, 0, 3, Q("0.2 in")))
sketch10.addConstraint(Sketcher.Constraint("DistanceY", 1, 3, 0, 3, Q("4.07 in")))
sketch10.addConstraint(Sketcher.Constraint("DistanceX", 1, 3, 2, 3, Q("1.19 in")))
sketch10.addConstraint(Sketcher.Constraint("DistanceY", 1, 3, 2, 3, Q("46.822 mm")))
sketch10.addConstraint(Sketcher.Constraint("DistanceX", -1, 1, 0, 3, Q("126.617947 mm")))
sketch10.addConstraint(Sketcher.Constraint("DistanceY", -1, 1, 0, 3, Q("131.830023 mm")))
pocket9 = body.newObject("PartDesign::Pocket", "Pocket008")
pocket9.Profile = sketch10
pocket9.Type = "ThroughAll"

sketch11 = body.newObject("Sketcher::SketchObject", "Sketch010")
sketch11.AttachmentSupport = (doc.getObject("XZ_Plane"), [""])
sketch11.MapMode = "FlatFace"
sketch11.AttachmentOffset = App.Placement(V(0, 0, -0.125 * 25.4), App.Rotation())
sketch11.addGeometry(Part.Circle(V(79, 178.6, 0), V(0, 0, 1), 2.2), False)
sketch11.addGeometry(Part.Circle(V(-16.8, 178.6, 0), V(0, 0, 1), 2.2), False)
sketch11.addGeometry(Part.Circle(V(79, 136.7, 0), V(0, 0, 1), 2.2), False)
sketch11.addGeometry(Part.Circle(V(-16.8, 136.7, 0), V(0, 0, 1), 2.2), False)
sketch11.addGeometry(Part.Circle(V(79, 101.1, 0), V(0, 0, 1), 2.2), False)
sketch11.addGeometry(Part.Circle(V(-16.8, 101.1, 0), V(0, 0, 1), 2.2), False)
sketch11.addGeometry(Part.Circle(V(79, 59.2, 0), V(0, 0, 1), 2.2), False)
sketch11.addGeometry(Part.Circle(V(-16.8, 59.2, 0), V(0, 0, 1), 2.2), False)
sketch11.addGeometry(Part.Circle(V(79, 23.6, 0), V(0, 0, 1), 2.2), False)
sketch11.addGeometry(Part.Circle(V(-16.8, 23.6, 0), V(0, 0, 1), 2.2), False)
sketch11.addGeometry(Part.Circle(V(79, -18.3, 0), V(0, 0, 1), 2.2), False)
sketch11.addGeometry(Part.Circle(V(-16.8, -18.3, 0), V(0, 0, 1), 2.2), False)
sketch11.addConstraint(Sketcher.Constraint("Equal", 0, 1))
sketch11.addConstraint(Sketcher.Constraint("Equal", 1, 2))
sketch11.addConstraint(Sketcher.Constraint("Equal", 2, 3))
sketch11.addConstraint(Sketcher.Constraint("Equal", 3, 4))
sketch11.addConstraint(Sketcher.Constraint("Equal", 4, 5))
sketch11.addConstraint(Sketcher.Constraint("Equal", 5, 6))
sketch11.addConstraint(Sketcher.Constraint("Equal", 6, 7))
sketch11.addConstraint(Sketcher.Constraint("Equal", 7, 8))
sketch11.addConstraint(Sketcher.Constraint("Equal", 8, 9))
sketch11.addConstraint(Sketcher.Constraint("Equal", 9, 10))
sketch11.addConstraint(Sketcher.Constraint("Equal", 10, 11))
sketch11.addConstraint(Sketcher.Constraint("Horizontal", 0, 3, 1, 3))
sketch11.addConstraint(Sketcher.Constraint("Horizontal", 2, 3, 3, 3))
sketch11.addConstraint(Sketcher.Constraint("Horizontal", 4, 3, 5, 3))
sketch11.addConstraint(Sketcher.Constraint("Horizontal", 6, 3, 7, 3))
sketch11.addConstraint(Sketcher.Constraint("Horizontal", 8, 3, 9, 3))
sketch11.addConstraint(Sketcher.Constraint("Horizontal", 10, 3, 11, 3))
sketch11.addConstraint(Sketcher.Constraint("Vertical", 0, 3, 2, 3))
sketch11.addConstraint(Sketcher.Constraint("Vertical", 1, 3, 3, 3))
sketch11.addConstraint(Sketcher.Constraint("Vertical", 2, 3, 4, 3))
sketch11.addConstraint(Sketcher.Constraint("Vertical", 3, 3, 5, 3))
sketch11.addConstraint(Sketcher.Constraint("Vertical", 4, 3, 6, 3))
sketch11.addConstraint(Sketcher.Constraint("Vertical", 5, 3, 7, 3))
sketch11.addConstraint(Sketcher.Constraint("Vertical", 6, 3, 8, 3))
sketch11.addConstraint(Sketcher.Constraint("Vertical", 7, 3, 9, 3))
sketch11.addConstraint(Sketcher.Constraint("Vertical", 8, 3, 10, 3))
sketch11.addConstraint(Sketcher.Constraint("Vertical", 9, 3, 11, 3))
sketch11.addConstraint(Sketcher.Constraint("Diameter", 0, Q("0.175 in")))
sketch11.addConstraint(Sketcher.Constraint("DistanceY", 4, 3, 2, 3, Q("1.4 in")))
sketch11.addConstraint(Sketcher.Constraint("DistanceY", 6, 3, 0, 3, Q("4.7 in")))
sketch11.addConstraint(Sketcher.Constraint("DistanceY", 8, 3, 6, 3, Q("1.4 in")))
sketch11.addConstraint(Sketcher.Constraint("DistanceY", 10, 3, 4, 3, Q("4.7 in")))
sketch11.addConstraint(Sketcher.Constraint("DistanceX", 1, 3, 0, 3, Q("3.77 in")))
sketch11.addConstraint(Sketcher.Constraint("DistanceY", 2, 3, 0, 3, Q("1.65 in")))
sketch11.addConstraint(Sketcher.Constraint("DistanceX", -1, 1, 0, 3, Q("78.992947 mm")))
sketch11.addConstraint(Sketcher.Constraint("DistanceY", -1, 1, 0, 3, Q("178.566023 mm")))
pocket10 = body.newObject("PartDesign::Pocket", "Pocket009")
pocket10.Profile = sketch11
pocket10.Type = "ThroughAll"
pocket10.Reversed = True

doc.recompute()
